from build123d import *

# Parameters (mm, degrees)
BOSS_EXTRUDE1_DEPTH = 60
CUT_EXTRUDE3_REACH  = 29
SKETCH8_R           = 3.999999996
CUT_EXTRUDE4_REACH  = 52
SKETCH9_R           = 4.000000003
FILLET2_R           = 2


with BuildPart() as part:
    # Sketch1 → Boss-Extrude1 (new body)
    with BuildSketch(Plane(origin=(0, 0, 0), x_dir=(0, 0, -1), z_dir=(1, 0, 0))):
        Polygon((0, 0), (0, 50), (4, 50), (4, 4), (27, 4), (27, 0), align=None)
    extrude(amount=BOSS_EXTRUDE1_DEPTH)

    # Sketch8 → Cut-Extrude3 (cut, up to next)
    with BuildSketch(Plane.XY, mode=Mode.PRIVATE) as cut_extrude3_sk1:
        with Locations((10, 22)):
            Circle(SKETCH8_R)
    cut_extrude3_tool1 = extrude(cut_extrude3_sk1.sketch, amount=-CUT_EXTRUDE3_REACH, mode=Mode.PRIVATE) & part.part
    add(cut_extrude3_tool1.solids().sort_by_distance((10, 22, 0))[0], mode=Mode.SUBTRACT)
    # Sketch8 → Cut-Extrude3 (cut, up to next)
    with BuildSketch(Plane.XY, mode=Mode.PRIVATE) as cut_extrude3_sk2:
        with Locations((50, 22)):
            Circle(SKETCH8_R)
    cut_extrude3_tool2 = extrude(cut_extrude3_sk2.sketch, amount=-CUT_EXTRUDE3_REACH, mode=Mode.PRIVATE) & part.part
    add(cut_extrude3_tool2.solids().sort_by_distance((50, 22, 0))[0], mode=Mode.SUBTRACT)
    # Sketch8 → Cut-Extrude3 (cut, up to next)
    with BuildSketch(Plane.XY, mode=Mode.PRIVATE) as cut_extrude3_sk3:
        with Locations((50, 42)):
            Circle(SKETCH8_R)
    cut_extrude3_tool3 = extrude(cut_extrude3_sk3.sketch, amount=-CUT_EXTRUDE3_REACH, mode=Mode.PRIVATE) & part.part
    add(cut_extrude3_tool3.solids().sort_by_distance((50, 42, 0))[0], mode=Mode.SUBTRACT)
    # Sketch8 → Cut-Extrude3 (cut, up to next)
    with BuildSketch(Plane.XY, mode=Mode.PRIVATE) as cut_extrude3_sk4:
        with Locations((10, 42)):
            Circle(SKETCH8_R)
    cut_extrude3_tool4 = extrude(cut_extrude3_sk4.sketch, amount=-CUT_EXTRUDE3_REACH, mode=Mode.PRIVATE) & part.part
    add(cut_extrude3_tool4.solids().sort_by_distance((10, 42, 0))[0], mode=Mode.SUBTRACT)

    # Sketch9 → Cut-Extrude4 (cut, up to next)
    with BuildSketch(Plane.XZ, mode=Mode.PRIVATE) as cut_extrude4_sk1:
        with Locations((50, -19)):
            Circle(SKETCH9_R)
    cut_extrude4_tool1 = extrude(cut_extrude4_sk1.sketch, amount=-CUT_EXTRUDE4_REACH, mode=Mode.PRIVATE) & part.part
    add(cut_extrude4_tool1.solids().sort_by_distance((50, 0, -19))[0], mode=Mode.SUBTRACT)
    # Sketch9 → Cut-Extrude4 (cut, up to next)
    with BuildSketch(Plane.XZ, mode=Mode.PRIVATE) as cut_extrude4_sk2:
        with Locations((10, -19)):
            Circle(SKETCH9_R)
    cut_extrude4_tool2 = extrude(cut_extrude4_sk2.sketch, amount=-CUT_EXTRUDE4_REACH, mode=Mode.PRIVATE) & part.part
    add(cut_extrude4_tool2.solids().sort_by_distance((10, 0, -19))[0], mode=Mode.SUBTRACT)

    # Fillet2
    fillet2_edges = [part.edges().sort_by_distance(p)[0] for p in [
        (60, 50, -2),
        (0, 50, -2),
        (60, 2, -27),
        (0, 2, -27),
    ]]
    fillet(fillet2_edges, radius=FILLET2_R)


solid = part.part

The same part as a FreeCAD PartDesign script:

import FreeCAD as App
import Part
import Sketcher


def edges_at(feature, points):
    """Names of the edges that pass closest to the given points."""
    edges = feature.Shape.Edges
    near = lambda p: min(range(len(edges)), key=lambda i: edges[i].distToShape(Part.Vertex(*p))[0])
    return sorted({f"Edge{near(p) + 1}" for p in points})


def add_polygon(sketch, points):
    """Adds a closed chain of lines whose ends are joined by coincident constraints."""
    first, n = sketch.GeometryCount, len(points)
    for a, b in zip(points, points[1:] + points[:1]):
        sketch.addGeometry(Part.LineSegment(App.Vector(*a, 0), App.Vector(*b, 0)), False)
    for i in range(n):
        sketch.addConstraint(Sketcher.Constraint("Coincident", first + i, 2, first + (i + 1) % n, 1))

doc = App.newDocument("Part")
body = doc.addObject("PartDesign::Body", "Body")

# Sketch on YZ plane
sketch1 = doc.addObject("Sketcher::SketchObject", "Sketch")
body.addObject(sketch1)
sketch1.AttachmentSupport = (doc.YZ_Plane, [""])
sketch1.MapMode = "FlatFace"
add_polygon(sketch1, [(50, 0), (0, 0), (0, -27), (4, -27), (4, -4), (50, -4)])  # lines 0-5
sketch1.addConstraint([
    Sketcher.Constraint("Horizontal", 0),
    Sketcher.Constraint("Vertical", 1),
    Sketcher.Constraint("Horizontal", 2),
    Sketcher.Constraint("Vertical", 3),
    Sketcher.Constraint("Horizontal", 4),
    Sketcher.Constraint("Vertical", 5),
    Sketcher.Constraint("Coincident", 0, 2, -1, 1),
    Sketcher.Constraint("Equal", 2, 5),
    Sketcher.Constraint("DistanceX", 0, 2, 0, 1, 50.0),
    Sketcher.Constraint("DistanceX", 2, 1, 2, 2, 4.0),
    Sketcher.Constraint("DistanceY", 1, 2, 1, 1, 27.0),
])
pad1 = doc.addObject("PartDesign::Pad", "Pad")
body.addObject(pad1)
pad1.Profile = sketch1
pad1.Length = 60

# Sketch on XY plane
sketch2 = doc.addObject("Sketcher::SketchObject", "Sketch001")
body.addObject(sketch2)
sketch2.AttachmentSupport = (doc.XY_Plane, [""])
sketch2.MapMode = "FlatFace"
sketch2.addGeometry(Part.Circle(App.Vector(10, 22, 0), App.Vector(0, 0, 1), 4), False)
sketch2.addConstraint([
    Sketcher.Constraint("Diameter", 0, 8.0),
    Sketcher.Constraint("DistanceX", -1, 1, 0, 3, 10.0),
    Sketcher.Constraint("DistanceY", -1, 1, 0, 3, 22.0),
])
pocket1 = doc.addObject("PartDesign::Pocket", "Pocket")
body.addObject(pocket1)
pocket1.Profile = sketch2
pocket1.Type = "UpToFirst"

# Sketch on XY plane
sketch3 = doc.addObject("Sketcher::SketchObject", "Sketch002")
body.addObject(sketch3)
sketch3.AttachmentSupport = (doc.XY_Plane, [""])
sketch3.MapMode = "FlatFace"
sketch3.addGeometry(Part.Circle(App.Vector(50, 22, 0), App.Vector(0, 0, 1), 4), False)
sketch3.addConstraint([
    Sketcher.Constraint("Diameter", 0, 8.0),
    Sketcher.Constraint("DistanceX", -1, 1, 0, 3, 50.0),
    Sketcher.Constraint("DistanceY", -1, 1, 0, 3, 22.0),
])
pocket2 = doc.addObject("PartDesign::Pocket", "Pocket001")
body.addObject(pocket2)
pocket2.Profile = sketch3
pocket2.Type = "UpToFirst"

# Sketch on XY plane
sketch4 = doc.addObject("Sketcher::SketchObject", "Sketch003")
body.addObject(sketch4)
sketch4.AttachmentSupport = (doc.XY_Plane, [""])
sketch4.MapMode = "FlatFace"
sketch4.addGeometry(Part.Circle(App.Vector(50, 42, 0), App.Vector(0, 0, 1), 4), False)
sketch4.addConstraint([
    Sketcher.Constraint("Diameter", 0, 8.0),
    Sketcher.Constraint("DistanceX", -1, 1, 0, 3, 50.0),
    Sketcher.Constraint("DistanceY", -1, 1, 0, 3, 42.0),
])
pocket3 = doc.addObject("PartDesign::Pocket", "Pocket002")
body.addObject(pocket3)
pocket3.Profile = sketch4
pocket3.Type = "UpToFirst"

# Sketch on XY plane
sketch5 = doc.addObject("Sketcher::SketchObject", "Sketch004")
body.addObject(sketch5)
sketch5.AttachmentSupport = (doc.XY_Plane, [""])
sketch5.MapMode = "FlatFace"
sketch5.addGeometry(Part.Circle(App.Vector(10, 42, 0), App.Vector(0, 0, 1), 4), False)
sketch5.addConstraint([
    Sketcher.Constraint("Diameter", 0, 8.0),
    Sketcher.Constraint("DistanceX", -1, 1, 0, 3, 10.0),
    Sketcher.Constraint("DistanceY", -1, 1, 0, 3, 42.0),
])
pocket4 = doc.addObject("PartDesign::Pocket", "Pocket003")
body.addObject(pocket4)
pocket4.Profile = sketch5
pocket4.Type = "UpToFirst"

# Sketch on XZ plane
sketch6 = doc.addObject("Sketcher::SketchObject", "Sketch005")
body.addObject(sketch6)
sketch6.AttachmentSupport = (doc.XZ_Plane, [""])
sketch6.MapMode = "FlatFace"
sketch6.addGeometry(Part.Circle(App.Vector(50, -19, 0), App.Vector(0, 0, 1), 4), False)
sketch6.addConstraint([
    Sketcher.Constraint("Diameter", 0, 8.0),
    Sketcher.Constraint("DistanceX", -1, 1, 0, 3, 50.0),
    Sketcher.Constraint("DistanceY", 0, 3, -1, 1, 19.0),
])
pocket5 = doc.addObject("PartDesign::Pocket", "Pocket004")
body.addObject(pocket5)
pocket5.Profile = sketch6
pocket5.Type = "UpToFirst"

# Sketch on XZ plane
sketch7 = doc.addObject("Sketcher::SketchObject", "Sketch006")
body.addObject(sketch7)
sketch7.AttachmentSupport = (doc.XZ_Plane, [""])
sketch7.MapMode = "FlatFace"
sketch7.addGeometry(Part.Circle(App.Vector(10, -19, 0), App.Vector(0, 0, 1), 4), False)
sketch7.addConstraint([
    Sketcher.Constraint("Diameter", 0, 8.0),
    Sketcher.Constraint("DistanceX", -1, 1, 0, 3, 10.0),
    Sketcher.Constraint("DistanceY", 0, 3, -1, 1, 19.0),
])
pocket6 = doc.addObject("PartDesign::Pocket", "Pocket005")
body.addObject(pocket6)
pocket6.Profile = sketch7
pocket6.Type = "UpToFirst"
doc.recompute()

fillet = doc.addObject("PartDesign::Fillet", "Fillet")
body.addObject(fillet)
fillet.Base = (pocket6, edges_at(pocket6, [
    (60, 50, -2),
    (0, 50, -2),
    (60, 2, -27),
    (0, 2, -27),
]))
fillet.Radius = 2

doc.recompute()
